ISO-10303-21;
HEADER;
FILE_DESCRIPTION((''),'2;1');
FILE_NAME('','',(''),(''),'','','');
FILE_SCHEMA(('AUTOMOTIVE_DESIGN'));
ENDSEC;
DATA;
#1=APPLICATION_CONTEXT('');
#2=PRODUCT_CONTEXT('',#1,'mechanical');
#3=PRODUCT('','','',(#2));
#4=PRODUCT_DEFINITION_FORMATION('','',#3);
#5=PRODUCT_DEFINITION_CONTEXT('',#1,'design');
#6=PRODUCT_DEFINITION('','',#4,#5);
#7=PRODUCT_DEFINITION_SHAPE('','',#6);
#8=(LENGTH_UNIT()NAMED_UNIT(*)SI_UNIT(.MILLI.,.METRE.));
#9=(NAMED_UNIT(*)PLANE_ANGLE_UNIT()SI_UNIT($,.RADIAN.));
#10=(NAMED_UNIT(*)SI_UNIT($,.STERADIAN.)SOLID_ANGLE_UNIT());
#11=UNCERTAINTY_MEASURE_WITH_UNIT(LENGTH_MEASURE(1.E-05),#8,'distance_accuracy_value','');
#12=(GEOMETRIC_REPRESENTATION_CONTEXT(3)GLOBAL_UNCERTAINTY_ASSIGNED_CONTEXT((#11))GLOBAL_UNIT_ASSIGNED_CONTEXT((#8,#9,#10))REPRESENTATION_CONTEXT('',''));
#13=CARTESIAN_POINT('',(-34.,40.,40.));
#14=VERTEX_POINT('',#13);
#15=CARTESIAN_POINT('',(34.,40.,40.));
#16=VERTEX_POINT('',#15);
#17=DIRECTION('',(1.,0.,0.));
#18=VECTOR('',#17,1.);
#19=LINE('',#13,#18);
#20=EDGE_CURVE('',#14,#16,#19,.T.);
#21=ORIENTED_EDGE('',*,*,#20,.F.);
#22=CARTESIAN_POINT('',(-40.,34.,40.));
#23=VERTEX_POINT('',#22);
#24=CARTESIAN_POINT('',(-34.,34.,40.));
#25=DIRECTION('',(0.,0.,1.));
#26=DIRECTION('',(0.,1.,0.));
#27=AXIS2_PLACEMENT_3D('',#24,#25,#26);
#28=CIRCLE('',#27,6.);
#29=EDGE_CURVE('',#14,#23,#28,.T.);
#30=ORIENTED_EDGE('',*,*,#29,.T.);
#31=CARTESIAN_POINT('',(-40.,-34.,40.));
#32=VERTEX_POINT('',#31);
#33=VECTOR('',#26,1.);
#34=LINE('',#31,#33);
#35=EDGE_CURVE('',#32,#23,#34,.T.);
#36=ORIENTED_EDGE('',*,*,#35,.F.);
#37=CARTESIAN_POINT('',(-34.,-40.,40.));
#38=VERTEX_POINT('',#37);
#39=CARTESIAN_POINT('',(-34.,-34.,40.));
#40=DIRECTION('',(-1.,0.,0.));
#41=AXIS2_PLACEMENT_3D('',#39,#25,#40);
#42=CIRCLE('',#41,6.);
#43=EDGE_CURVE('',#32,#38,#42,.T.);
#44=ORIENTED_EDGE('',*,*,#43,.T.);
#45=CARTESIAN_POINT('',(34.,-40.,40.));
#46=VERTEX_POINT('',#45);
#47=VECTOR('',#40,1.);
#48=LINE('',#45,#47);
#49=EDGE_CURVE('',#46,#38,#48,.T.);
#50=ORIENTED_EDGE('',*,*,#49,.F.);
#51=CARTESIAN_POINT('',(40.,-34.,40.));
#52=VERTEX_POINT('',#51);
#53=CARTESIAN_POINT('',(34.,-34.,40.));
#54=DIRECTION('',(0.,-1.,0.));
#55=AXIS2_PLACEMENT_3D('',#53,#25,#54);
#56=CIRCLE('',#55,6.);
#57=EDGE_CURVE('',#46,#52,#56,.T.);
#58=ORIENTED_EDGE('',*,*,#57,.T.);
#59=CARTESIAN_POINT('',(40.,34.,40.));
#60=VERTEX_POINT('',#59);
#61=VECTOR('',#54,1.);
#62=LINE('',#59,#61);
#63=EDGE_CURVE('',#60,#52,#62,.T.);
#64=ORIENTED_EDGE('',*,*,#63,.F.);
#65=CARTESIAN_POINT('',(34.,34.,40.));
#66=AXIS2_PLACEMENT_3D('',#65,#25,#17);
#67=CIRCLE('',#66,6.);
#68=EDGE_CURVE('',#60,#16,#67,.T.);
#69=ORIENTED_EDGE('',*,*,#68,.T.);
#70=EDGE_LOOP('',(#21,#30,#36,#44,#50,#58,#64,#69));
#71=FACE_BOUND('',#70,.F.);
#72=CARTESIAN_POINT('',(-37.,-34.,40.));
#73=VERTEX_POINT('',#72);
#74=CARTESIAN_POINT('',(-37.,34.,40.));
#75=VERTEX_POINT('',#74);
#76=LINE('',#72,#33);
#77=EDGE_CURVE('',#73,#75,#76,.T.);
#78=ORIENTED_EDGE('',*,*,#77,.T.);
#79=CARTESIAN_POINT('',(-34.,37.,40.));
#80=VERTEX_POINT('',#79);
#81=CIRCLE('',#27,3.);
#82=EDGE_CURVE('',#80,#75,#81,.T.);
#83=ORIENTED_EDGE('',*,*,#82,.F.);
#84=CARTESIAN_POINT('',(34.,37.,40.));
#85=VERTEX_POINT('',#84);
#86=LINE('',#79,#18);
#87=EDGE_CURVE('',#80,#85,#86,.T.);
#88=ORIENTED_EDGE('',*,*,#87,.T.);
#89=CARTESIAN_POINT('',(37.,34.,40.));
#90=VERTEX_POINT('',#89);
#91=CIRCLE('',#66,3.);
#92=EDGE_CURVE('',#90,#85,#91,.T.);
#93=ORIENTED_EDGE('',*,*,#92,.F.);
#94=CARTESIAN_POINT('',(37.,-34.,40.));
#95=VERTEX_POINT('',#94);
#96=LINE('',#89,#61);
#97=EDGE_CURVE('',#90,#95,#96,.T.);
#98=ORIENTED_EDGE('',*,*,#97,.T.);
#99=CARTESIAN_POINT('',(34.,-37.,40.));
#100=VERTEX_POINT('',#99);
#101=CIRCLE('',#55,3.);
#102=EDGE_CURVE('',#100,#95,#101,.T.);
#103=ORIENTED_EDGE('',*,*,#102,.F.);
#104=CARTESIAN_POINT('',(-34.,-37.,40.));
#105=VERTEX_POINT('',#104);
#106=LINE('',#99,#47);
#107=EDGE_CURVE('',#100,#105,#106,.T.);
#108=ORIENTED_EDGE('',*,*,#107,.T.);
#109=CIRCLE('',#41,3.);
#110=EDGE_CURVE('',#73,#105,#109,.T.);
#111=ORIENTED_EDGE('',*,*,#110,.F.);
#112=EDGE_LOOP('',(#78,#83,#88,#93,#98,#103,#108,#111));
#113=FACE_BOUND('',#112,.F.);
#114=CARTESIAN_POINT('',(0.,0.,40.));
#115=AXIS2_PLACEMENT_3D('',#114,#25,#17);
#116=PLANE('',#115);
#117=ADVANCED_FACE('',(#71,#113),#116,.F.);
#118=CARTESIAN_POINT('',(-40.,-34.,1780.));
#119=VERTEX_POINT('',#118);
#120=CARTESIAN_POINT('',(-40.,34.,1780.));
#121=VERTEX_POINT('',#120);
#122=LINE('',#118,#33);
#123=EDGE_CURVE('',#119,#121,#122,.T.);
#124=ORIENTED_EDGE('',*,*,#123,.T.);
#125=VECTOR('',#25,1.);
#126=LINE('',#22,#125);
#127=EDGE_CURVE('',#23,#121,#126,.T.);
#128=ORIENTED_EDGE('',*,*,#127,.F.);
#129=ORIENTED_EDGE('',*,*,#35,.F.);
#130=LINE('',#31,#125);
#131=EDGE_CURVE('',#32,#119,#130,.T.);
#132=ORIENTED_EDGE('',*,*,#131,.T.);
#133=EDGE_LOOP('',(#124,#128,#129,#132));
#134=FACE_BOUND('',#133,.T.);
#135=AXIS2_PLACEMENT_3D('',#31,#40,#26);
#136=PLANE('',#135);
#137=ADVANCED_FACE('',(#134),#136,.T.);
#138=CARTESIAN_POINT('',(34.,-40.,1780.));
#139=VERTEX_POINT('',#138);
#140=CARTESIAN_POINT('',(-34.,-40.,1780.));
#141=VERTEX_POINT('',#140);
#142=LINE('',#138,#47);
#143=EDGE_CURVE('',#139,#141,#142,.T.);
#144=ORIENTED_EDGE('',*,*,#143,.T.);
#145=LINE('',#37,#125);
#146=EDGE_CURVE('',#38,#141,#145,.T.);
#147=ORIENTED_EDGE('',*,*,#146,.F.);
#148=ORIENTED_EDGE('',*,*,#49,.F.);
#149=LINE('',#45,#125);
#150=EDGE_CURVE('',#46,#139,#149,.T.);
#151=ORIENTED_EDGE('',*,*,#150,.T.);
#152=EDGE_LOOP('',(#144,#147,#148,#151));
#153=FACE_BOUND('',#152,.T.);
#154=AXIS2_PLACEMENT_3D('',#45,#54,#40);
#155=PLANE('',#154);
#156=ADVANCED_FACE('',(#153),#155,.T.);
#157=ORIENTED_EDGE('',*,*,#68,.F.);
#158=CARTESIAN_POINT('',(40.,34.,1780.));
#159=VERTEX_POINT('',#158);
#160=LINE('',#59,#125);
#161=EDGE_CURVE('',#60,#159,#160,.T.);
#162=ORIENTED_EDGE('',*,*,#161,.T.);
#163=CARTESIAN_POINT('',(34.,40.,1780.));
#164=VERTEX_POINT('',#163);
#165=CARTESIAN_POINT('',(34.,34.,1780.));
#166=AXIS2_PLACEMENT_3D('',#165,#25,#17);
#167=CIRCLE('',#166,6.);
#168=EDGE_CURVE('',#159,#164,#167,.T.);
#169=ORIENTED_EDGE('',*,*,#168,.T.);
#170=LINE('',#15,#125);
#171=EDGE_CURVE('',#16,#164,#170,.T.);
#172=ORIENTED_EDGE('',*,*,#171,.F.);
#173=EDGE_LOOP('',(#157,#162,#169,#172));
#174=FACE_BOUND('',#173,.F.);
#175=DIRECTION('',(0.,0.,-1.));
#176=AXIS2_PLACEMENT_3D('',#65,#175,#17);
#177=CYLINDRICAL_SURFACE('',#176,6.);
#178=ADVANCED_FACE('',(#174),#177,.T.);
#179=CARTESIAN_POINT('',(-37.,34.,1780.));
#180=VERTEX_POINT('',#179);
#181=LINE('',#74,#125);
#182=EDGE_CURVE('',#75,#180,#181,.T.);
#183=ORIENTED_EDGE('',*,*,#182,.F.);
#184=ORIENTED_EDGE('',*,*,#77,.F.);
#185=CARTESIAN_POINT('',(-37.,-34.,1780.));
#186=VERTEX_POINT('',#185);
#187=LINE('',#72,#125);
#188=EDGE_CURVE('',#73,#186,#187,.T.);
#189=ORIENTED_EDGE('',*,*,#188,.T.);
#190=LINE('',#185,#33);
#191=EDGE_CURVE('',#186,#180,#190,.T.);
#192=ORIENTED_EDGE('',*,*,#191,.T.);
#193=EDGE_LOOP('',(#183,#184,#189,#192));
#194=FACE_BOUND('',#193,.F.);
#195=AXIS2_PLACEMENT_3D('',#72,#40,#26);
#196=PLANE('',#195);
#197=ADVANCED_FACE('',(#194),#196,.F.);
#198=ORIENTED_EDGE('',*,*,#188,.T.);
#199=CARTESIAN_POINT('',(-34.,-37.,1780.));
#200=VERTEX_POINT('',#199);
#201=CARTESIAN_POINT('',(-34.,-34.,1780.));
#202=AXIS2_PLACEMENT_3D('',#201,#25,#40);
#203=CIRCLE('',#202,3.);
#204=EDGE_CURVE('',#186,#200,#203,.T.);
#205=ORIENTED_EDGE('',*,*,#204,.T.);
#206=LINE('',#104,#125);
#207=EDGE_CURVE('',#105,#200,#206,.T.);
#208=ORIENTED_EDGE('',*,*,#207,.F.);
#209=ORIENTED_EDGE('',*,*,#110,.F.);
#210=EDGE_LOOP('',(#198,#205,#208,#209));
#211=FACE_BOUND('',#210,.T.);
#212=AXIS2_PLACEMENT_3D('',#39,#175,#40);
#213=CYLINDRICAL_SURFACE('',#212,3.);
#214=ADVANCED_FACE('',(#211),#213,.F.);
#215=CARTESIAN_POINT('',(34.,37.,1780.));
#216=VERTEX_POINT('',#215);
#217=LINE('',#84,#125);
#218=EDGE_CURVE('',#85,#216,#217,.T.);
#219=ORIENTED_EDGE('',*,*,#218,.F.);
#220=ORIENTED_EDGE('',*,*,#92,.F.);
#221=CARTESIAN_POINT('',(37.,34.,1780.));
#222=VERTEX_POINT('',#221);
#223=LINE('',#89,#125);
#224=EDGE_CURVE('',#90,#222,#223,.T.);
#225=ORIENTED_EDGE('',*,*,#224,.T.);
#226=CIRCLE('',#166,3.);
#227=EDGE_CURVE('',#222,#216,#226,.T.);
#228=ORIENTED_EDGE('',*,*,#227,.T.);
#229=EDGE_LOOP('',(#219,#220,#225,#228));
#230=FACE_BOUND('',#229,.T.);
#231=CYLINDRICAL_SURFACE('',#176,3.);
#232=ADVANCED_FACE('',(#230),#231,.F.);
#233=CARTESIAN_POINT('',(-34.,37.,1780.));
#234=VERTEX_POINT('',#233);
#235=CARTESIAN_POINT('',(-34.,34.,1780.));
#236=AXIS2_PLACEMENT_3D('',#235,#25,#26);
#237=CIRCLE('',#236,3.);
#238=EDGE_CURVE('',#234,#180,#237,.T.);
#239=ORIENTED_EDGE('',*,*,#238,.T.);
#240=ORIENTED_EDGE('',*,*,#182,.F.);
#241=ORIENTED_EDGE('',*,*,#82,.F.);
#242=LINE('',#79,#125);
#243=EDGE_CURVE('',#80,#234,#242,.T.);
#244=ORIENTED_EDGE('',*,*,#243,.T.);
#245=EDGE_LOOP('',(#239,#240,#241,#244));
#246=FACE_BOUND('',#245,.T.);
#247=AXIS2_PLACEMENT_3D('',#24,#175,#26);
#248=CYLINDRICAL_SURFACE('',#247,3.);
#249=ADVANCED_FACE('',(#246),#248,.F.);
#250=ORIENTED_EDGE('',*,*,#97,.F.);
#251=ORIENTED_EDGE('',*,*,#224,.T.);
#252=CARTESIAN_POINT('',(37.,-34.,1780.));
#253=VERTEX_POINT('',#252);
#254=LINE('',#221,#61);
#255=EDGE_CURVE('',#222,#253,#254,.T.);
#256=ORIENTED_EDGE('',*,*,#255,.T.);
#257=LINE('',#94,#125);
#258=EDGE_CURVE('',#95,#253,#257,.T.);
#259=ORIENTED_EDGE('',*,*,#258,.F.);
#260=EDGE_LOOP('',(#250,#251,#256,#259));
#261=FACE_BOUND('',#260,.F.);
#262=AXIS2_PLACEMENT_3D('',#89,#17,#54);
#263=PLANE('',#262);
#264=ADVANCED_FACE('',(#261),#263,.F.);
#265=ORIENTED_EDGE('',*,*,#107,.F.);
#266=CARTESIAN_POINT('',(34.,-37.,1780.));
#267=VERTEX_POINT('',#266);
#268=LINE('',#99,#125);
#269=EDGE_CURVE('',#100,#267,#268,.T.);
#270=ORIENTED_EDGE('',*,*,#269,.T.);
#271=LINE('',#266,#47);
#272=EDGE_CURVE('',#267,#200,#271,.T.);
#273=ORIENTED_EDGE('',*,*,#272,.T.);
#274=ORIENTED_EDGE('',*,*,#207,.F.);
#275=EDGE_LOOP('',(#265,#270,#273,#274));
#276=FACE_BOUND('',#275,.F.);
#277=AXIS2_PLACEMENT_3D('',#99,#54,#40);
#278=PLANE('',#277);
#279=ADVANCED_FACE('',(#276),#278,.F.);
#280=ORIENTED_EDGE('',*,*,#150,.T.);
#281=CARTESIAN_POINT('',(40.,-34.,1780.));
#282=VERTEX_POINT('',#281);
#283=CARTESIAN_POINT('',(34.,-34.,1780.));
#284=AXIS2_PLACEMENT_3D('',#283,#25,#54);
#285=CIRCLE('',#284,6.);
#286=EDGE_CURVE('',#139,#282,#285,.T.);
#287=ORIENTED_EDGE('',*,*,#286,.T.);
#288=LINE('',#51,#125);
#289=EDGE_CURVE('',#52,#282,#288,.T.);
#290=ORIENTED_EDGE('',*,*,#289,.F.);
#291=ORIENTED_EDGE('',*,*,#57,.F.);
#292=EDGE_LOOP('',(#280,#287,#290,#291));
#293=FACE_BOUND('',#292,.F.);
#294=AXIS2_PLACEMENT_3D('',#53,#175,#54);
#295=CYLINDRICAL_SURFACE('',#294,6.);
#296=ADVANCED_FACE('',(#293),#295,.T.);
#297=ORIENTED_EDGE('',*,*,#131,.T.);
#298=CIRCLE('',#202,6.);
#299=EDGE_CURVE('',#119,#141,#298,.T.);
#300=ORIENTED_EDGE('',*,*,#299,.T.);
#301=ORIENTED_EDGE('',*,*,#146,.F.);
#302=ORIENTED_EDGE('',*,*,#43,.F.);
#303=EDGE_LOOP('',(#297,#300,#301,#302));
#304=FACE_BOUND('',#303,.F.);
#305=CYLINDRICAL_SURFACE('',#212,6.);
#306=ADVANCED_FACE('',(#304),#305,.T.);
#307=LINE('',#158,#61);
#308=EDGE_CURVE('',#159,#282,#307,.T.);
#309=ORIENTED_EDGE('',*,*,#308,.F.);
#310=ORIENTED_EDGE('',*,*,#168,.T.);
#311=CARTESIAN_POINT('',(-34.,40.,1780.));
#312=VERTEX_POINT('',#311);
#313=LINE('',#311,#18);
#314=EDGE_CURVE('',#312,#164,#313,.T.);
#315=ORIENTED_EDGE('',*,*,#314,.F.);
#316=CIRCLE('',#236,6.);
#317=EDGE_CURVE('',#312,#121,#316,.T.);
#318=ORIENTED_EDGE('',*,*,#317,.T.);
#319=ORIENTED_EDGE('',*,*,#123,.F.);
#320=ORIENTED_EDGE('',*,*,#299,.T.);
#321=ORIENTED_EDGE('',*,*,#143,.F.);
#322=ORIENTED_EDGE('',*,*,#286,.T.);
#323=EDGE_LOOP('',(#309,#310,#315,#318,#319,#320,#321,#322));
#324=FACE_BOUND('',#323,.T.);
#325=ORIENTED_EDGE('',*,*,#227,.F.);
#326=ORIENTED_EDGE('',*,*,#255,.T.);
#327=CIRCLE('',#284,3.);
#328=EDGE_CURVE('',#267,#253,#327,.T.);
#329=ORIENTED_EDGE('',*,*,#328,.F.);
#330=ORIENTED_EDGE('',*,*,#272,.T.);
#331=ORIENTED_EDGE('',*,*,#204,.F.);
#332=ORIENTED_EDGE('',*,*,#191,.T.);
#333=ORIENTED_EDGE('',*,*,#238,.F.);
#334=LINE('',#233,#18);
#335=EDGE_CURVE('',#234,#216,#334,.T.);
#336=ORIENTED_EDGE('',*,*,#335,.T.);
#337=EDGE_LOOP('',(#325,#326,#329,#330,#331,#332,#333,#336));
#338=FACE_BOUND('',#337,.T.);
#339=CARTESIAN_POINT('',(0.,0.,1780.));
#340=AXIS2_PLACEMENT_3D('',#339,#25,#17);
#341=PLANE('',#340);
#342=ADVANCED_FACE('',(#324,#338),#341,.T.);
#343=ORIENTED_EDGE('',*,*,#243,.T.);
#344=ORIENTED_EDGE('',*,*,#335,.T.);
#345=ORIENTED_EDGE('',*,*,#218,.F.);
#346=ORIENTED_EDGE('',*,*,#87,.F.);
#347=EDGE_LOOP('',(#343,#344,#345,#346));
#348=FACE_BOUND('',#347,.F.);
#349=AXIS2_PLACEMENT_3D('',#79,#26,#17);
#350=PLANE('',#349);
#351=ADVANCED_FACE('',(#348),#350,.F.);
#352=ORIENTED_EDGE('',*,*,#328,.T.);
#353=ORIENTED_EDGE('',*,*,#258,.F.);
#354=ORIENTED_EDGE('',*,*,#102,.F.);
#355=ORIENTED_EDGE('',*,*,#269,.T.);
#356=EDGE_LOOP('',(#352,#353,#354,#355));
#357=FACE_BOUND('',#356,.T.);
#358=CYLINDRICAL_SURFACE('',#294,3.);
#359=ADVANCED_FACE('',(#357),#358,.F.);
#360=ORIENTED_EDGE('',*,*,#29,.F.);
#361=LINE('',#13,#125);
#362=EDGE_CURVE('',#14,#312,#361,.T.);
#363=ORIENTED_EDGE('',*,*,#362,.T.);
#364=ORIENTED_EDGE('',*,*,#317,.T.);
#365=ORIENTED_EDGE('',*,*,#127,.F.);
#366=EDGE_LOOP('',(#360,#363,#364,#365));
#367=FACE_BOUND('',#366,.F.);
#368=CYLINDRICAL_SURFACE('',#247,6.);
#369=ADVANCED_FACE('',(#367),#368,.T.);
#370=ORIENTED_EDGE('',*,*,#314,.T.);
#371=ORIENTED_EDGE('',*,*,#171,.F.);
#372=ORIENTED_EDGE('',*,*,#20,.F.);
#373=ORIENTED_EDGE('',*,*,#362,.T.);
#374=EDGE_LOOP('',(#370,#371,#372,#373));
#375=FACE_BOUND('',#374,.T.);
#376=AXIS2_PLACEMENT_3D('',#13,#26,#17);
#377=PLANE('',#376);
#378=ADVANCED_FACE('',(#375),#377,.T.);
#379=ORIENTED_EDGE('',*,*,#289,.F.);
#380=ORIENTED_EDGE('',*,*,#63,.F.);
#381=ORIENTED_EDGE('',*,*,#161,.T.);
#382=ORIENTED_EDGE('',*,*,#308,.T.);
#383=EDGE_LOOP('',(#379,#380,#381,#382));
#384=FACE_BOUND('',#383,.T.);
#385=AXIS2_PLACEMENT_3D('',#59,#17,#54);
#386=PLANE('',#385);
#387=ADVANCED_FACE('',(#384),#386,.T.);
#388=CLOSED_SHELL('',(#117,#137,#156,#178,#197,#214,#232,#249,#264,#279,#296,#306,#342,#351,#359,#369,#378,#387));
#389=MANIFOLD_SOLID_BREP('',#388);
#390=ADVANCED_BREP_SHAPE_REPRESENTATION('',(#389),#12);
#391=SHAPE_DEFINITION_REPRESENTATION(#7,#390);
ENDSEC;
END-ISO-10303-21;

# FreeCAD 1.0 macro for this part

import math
import FreeCAD as App
import Part
import Sketcher

doc = App.newDocument("Part")
body = doc.addObject("PartDesign::Body", "Body")

sketch1 = body.newObject("Sketcher::SketchObject", "Sketch")
sketch1.AttachmentSupport = (doc.getObject("XY_Plane"), [""])
sketch1.MapMode = "FlatFace"
sketch1.AttachmentOffset = App.Placement(App.Vector(0, 0, 40), App.Rotation())
sketch1.addGeometry([
    Part.LineSegment(App.Vector(-40, 34, 0), App.Vector(-40, -34, 0)),
    Part.ArcOfCircle(Part.Circle(App.Vector(-34, -34, 0), App.Vector(0, 0, 1), 6), math.radians(180), math.radians(270)),
    Part.LineSegment(App.Vector(-34, -40, 0), App.Vector(34, -40, 0)),
    Part.ArcOfCircle(Part.Circle(App.Vector(34, -34, 0), App.Vector(0, 0, 1), 6), math.radians(-90), math.radians(0)),
    Part.LineSegment(App.Vector(40, -34, 0), App.Vector(40, 34, 0)),
    Part.ArcOfCircle(Part.Circle(App.Vector(34, 34, 0), App.Vector(0, 0, 1), 6), math.radians(0), math.radians(90)),
    Part.LineSegment(App.Vector(34, 40, 0), App.Vector(-34, 40, 0)),
    Part.ArcOfCircle(Part.Circle(App.Vector(-34, 34, 0), App.Vector(0, 0, 1), 6), math.radians(90), math.radians(180)),
    Part.ArcOfCircle(Part.Circle(App.Vector(-34, 34, 0), App.Vector(0, 0, 1), 3), math.radians(90), math.radians(180)),
    Part.LineSegment(App.Vector(-34, 37, 0), App.Vector(34, 37, 0)),
    Part.ArcOfCircle(Part.Circle(App.Vector(34, 34, 0), App.Vector(0, 0, 1), 3), math.radians(0), math.radians(90)),
    Part.LineSegment(App.Vector(37, 34, 0), App.Vector(37, -34, 0)),
    Part.ArcOfCircle(Part.Circle(App.Vector(34, -34, 0), App.Vector(0, 0, 1), 3), math.radians(-90), math.radians(0)),
    Part.LineSegment(App.Vector(34, -37, 0), App.Vector(-34, -37, 0)),
    Part.ArcOfCircle(Part.Circle(App.Vector(-34, -34, 0), App.Vector(0, 0, 1), 3), math.radians(180), math.radians(270)),
    Part.LineSegment(App.Vector(-37, -34, 0), App.Vector(-37, 34, 0)),
], False)
sketch1.addConstraint([
    Sketcher.Constraint("Tangent", 0, 2, 1, 1),
    Sketcher.Constraint("Tangent", 1, 2, 2, 1),
    Sketcher.Constraint("Tangent", 2, 2, 3, 1),
    Sketcher.Constraint("Tangent", 3, 2, 4, 1),
    Sketcher.Constraint("Tangent", 4, 2, 5, 1),
    Sketcher.Constraint("Tangent", 5, 2, 6, 1),
    Sketcher.Constraint("Tangent", 6, 2, 7, 1),
    Sketcher.Constraint("Tangent", 7, 2, 0, 1),
    Sketcher.Constraint("Tangent", 8, 1, 9, 1),
    Sketcher.Constraint("Tangent", 9, 2, 10, 2),
    Sketcher.Constraint("Tangent", 10, 1, 11, 1),
    Sketcher.Constraint("Tangent", 11, 2, 12, 2),
    Sketcher.Constraint("Tangent", 12, 1, 13, 1),
    Sketcher.Constraint("Tangent", 13, 2, 14, 2),
    Sketcher.Constraint("Tangent", 14, 1, 15, 1),
    Sketcher.Constraint("Tangent", 15, 2, 8, 2),
    Sketcher.Constraint("Vertical", 0),
    Sketcher.Constraint("Horizontal", 2),
    Sketcher.Constraint("Vertical", 4),
    Sketcher.Constraint("Horizontal", 6),
    Sketcher.Constraint("Horizontal", 9),
    Sketcher.Constraint("Vertical", 11),
    Sketcher.Constraint("Horizontal", 13),
    Sketcher.Constraint("Vertical", 15),
    Sketcher.Constraint("Coincident", 8, 3, 7, 3),
    Sketcher.Constraint("Coincident", 10, 3, 5, 3),
    Sketcher.Constraint("Coincident", 12, 3, 3, 3),
    Sketcher.Constraint("Equal", 1, 3),
    Sketcher.Constraint("Equal", 3, 5),
    Sketcher.Constraint("Equal", 5, 7),
    Sketcher.Constraint("Equal", 12, 14),
    Sketcher.Constraint("Symmetric", 1, 3, 5, 3, -1, 1),
    Sketcher.Constraint("Equal", 13, 0),
    Sketcher.Constraint("Radius", 1, 6.0),
    Sketcher.Constraint("Radius", 8, 3.0),
    Sketcher.Constraint("DistanceX", 0, 2, -1, 1, 40.0),
])
pad1 = body.newObject("PartDesign::Pad", "Pad")
pad1.Profile = sketch1
pad1.Length = 1740

doc.recompute()
